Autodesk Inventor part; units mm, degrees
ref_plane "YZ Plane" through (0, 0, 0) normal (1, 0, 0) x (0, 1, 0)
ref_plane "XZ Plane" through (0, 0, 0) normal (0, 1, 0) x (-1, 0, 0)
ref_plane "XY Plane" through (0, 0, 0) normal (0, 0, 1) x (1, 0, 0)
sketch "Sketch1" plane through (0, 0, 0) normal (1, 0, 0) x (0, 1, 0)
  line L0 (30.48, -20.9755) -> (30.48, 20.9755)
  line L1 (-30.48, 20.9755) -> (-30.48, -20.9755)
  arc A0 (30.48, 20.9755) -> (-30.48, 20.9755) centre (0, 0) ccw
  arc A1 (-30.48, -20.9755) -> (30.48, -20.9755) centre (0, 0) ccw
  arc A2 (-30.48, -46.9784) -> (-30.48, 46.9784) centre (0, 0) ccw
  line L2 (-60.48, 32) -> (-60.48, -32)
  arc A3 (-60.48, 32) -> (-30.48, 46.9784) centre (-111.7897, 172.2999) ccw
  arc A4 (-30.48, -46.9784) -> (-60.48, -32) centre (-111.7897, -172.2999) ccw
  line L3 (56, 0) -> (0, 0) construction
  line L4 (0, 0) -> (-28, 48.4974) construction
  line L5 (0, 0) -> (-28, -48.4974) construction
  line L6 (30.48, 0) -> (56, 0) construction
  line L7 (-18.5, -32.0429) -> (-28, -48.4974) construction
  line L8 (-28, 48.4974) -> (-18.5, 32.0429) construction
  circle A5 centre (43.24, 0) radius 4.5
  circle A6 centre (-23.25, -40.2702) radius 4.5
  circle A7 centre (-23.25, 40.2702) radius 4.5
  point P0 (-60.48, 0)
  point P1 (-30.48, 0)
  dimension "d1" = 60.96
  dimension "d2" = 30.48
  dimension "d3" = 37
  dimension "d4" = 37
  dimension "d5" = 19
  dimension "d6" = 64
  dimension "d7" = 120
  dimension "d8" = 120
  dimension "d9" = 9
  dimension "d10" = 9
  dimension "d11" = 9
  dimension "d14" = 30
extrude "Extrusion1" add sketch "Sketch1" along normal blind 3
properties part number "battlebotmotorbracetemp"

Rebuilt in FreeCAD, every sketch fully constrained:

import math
import FreeCAD as App
import Part
import Sketcher

V = App.Vector

doc = App.newDocument("Part")
body = doc.addObject("PartDesign::Body", "Body")

sketch1 = body.newObject("Sketcher::SketchObject", "Sketch")
sketch1.AttachmentSupport = (doc.getObject("YZ_Plane"), [""])
sketch1.MapMode = "FlatFace"
sketch1.addGeometry(Part.ArcOfCircle(Part.Circle(V(-111.8, -172.3, 0), V(0, 0, 1), 149.4), math.radians(57.02), math.radians(69.91)), False)
sketch1.addGeometry(Part.ArcOfCircle(Part.Circle(V(0, 0, 0), V(0, 0, 1), 56), math.radians(-123), math.radians(123)), False)
sketch1.addGeometry(Part.ArcOfCircle(Part.Circle(V(-111.8, 172.3, 0), V(0, 0, 1), 149.4), math.radians(-69.91), math.radians(-57.02)), False)
sketch1.addGeometry(Part.LineSegment(V(-60.5, 32, 0), V(-60.5, -32, 0)), False)
sketch1.addGeometry(Part.Circle(V(-23.2, -40.3, 0), V(0, 0, 1), 4.5), False)
sketch1.addGeometry(Part.LineSegment(V(30.5, 21, 0), V(30.5, -21, 0)), False)
sketch1.addGeometry(Part.ArcOfCircle(Part.Circle(V(0, 0, 0), V(0, 0, 1), 37), math.radians(-145), math.radians(-35)), False)
sketch1.addGeometry(Part.LineSegment(V(-30.5, -21, 0), V(-30.5, 21, 0)), False)
sketch1.addGeometry(Part.ArcOfCircle(Part.Circle(V(0, 0, 0), V(0, 0, 1), 37), math.radians(35), math.radians(145)), False)
sketch1.addGeometry(Part.Circle(V(43.2, 0, 0), V(0, 0, 1), 4.5), False)
sketch1.addGeometry(Part.Circle(V(-23.2, 40.3, 0), V(0, 0, 1), 4.5), False)
sketch1.addConstraint(Sketcher.Constraint("Tangent", 0, 1, 1, 1))
sketch1.addConstraint(Sketcher.Constraint("Tangent", 1, 2, 2, 2))
sketch1.addConstraint(Sketcher.Constraint("Coincident", 2, 1, 3, 1))
sketch1.addConstraint(Sketcher.Constraint("Coincident", 3, 2, 0, 2))
sketch1.addConstraint(Sketcher.Constraint("Coincident", 5, 2, 6, 2))
sketch1.addConstraint(Sketcher.Constraint("Coincident", 6, 1, 7, 1))
sketch1.addConstraint(Sketcher.Constraint("Coincident", 7, 2, 8, 2))
sketch1.addConstraint(Sketcher.Constraint("Coincident", 8, 1, 5, 1))
sketch1.addConstraint(Sketcher.Constraint("Vertical", 3))
sketch1.addConstraint(Sketcher.Constraint("Vertical", 5))
sketch1.addConstraint(Sketcher.Constraint("Vertical", 7))
sketch1.addConstraint(Sketcher.Constraint("Coincident", 1, 3, -1, 1))
sketch1.addConstraint(Sketcher.Constraint("Coincident", 6, 3, -1, 1))
sketch1.addConstraint(Sketcher.Constraint("Coincident", 8, 3, -1, 1))
sketch1.addConstraint(Sketcher.Constraint("Equal", 0, 2))
sketch1.addConstraint(Sketcher.Constraint("Equal", 6, 8))
sketch1.addConstraint(Sketcher.Constraint("Equal", 4, 9))
sketch1.addConstraint(Sketcher.Constraint("Equal", 9, 10))
sketch1.addConstraint(Sketcher.Constraint("Symmetric", 4, 3, 10, 3, -1))
sketch1.addConstraint(Sketcher.Constraint("PointOnObject", 9, 3, -1))
sketch1.addConstraint(Sketcher.Constraint("Horizontal", 5, 2, 6, 1))
sketch1.addConstraint(Sketcher.Constraint("Vertical", 0, 3, 2, 3))
sketch1.addConstraint(Sketcher.Constraint("Vertical", 1, 2, 6, 1))
sketch1.addConstraint(Sketcher.Constraint("Diameter", 4, 9.0))
sketch1.addConstraint(Sketcher.Constraint("Radius", 6, 37.0))
sketch1.addConstraint(Sketcher.Constraint("DistanceY", 3, 2, 3, 1, 64.0))
sketch1.addConstraint(Sketcher.Constraint("Radius", 1, 56.0))
sketch1.addConstraint(Sketcher.Constraint("DistanceX", 2, 1, 1, 2, 30.0))
sketch1.addConstraint(Sketcher.Constraint("DistanceX", -1, 1, 5, 2, 30.48))
sketch1.addConstraint(Sketcher.Constraint("DistanceX", 4, 3, -1, 1, 23.25))
sketch1.addConstraint(Sketcher.Constraint("DistanceX", -1, 1, 9, 3, 43.24))
sketch1.addConstraint(Sketcher.Constraint("DistanceY", 4, 3, 2, 3, 212.57))
pad1 = body.newObject("PartDesign::Pad", "Pad")
pad1.Profile = sketch1
pad1.Length = 3

doc.recompute()
